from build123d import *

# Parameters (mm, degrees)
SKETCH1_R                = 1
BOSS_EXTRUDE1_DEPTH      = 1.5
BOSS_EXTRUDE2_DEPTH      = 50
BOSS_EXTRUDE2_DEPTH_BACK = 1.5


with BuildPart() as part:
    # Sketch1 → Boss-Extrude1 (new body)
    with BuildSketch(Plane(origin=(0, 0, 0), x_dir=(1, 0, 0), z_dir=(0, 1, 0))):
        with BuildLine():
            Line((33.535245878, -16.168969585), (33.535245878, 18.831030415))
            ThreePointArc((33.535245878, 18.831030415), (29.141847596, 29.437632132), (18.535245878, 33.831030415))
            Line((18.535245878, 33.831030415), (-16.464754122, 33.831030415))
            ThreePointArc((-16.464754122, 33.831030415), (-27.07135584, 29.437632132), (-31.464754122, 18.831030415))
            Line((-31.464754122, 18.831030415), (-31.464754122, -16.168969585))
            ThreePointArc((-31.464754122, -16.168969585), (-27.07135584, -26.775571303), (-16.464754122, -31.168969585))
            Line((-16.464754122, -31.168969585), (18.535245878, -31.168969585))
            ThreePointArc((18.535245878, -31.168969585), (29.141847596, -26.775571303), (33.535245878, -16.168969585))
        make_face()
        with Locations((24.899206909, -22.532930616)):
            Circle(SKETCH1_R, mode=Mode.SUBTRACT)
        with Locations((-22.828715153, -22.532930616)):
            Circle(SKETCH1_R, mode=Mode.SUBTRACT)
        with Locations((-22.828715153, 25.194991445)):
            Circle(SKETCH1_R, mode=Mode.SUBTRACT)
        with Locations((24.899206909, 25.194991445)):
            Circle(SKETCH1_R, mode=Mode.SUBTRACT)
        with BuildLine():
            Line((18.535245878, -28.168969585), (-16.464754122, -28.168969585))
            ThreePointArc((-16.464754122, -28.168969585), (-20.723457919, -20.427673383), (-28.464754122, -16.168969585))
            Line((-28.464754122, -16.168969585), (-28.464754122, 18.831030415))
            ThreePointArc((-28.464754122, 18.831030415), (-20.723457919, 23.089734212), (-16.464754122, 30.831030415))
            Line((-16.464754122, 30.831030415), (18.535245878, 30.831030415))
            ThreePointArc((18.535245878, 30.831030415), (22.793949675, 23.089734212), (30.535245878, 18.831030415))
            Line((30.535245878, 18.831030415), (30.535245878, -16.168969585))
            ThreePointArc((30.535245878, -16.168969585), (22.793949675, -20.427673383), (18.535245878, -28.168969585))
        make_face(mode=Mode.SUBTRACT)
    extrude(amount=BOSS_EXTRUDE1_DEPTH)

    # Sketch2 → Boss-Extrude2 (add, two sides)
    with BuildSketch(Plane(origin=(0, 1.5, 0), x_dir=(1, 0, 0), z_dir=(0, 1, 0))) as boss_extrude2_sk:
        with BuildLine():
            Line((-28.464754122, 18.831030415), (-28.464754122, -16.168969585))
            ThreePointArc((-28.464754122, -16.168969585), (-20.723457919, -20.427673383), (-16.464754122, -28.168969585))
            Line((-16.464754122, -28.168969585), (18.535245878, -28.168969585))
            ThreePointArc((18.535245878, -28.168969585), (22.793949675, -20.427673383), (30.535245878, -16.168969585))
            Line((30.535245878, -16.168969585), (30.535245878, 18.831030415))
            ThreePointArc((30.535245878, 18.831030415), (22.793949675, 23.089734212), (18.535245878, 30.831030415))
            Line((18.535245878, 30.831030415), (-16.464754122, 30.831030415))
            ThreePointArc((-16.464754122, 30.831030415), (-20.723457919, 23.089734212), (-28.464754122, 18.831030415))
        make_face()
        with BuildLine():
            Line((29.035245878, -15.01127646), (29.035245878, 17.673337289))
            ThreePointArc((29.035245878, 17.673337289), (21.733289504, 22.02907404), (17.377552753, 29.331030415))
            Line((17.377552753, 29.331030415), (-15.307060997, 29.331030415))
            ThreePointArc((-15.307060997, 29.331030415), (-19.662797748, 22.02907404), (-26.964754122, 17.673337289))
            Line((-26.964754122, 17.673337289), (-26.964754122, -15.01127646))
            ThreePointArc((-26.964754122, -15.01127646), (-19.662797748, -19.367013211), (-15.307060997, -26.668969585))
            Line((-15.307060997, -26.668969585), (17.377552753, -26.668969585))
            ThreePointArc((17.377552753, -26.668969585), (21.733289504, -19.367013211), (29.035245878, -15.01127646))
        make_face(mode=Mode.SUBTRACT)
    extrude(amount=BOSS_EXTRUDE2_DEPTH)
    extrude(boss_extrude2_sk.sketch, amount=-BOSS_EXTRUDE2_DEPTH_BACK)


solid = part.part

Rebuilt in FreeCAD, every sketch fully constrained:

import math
import FreeCAD as App
import Part
import Sketcher
from FreeCAD import Vector

doc = App.newDocument("Part")
body = doc.addObject("PartDesign::Body", "Body")

sketch1 = body.newObject("Sketcher::SketchObject", "Sketch")
sketch1.AttachmentSupport = (doc.getObject("XZ_Plane"), [""])
sketch1.MapMode = "FlatFace"
sketch1.addGeometry([
    Part.LineSegment(Vector(33.5, 16.2, 0), Vector(33.5, -18.8, 0)),
    Part.ArcOfCircle(Part.Circle(Vector(18.5, -18.8, 0), Vector(0, 0, 1), 15), math.radians(-90), math.radians(0)),
    Part.LineSegment(Vector(18.5, -33.8, 0), Vector(-16.5, -33.8, 0)),
    Part.ArcOfCircle(Part.Circle(Vector(-16.5, -18.8, 0), Vector(0, 0, 1), 15), math.radians(-180), math.radians(-90)),
    Part.LineSegment(Vector(-31.5, -18.8, 0), Vector(-31.5, 16.2, 0)),
    Part.ArcOfCircle(Part.Circle(Vector(-16.5, 16.2, 0), Vector(0, 0, 1), 15), math.radians(90), math.radians(180)),
    Part.LineSegment(Vector(-16.5, 31.2, 0), Vector(18.5, 31.2, 0)),
    Part.ArcOfCircle(Part.Circle(Vector(18.5, 16.2, 0), Vector(0, 0, 1), 15), math.radians(0), math.radians(90)),
    Part.Circle(Vector(-22.8, 22.5, 0), Vector(0, 0, 1), 1),
    Part.Circle(Vector(24.9, 22.5, 0), Vector(0, 0, 1), 1),
    Part.Circle(Vector(-22.8, -25.2, 0), Vector(0, 0, 1), 1),
    Part.ArcOfCircle(Part.Circle(Vector(34, 31.6, 0), Vector(0, 0, 1), 15.9), math.radians(-167), math.radians(-103)),
    Part.LineSegment(Vector(18.5, 28.2, 0), Vector(-16.5, 28.2, 0)),
    Part.ArcOfCircle(Part.Circle(Vector(-31.9, 31.6, 0), Vector(0, 0, 1), 15.9), math.radians(-77), math.radians(-13)),
    Part.LineSegment(Vector(-28.5, 16.2, 0), Vector(-28.5, -18.8, 0)),
    Part.ArcOfCircle(Part.Circle(Vector(-31.9, -34.3, 0), Vector(0, 0, 1), 15.9), math.radians(13), math.radians(77)),
    Part.LineSegment(Vector(-16.5, -30.8, 0), Vector(18.5, -30.8, 0)),
    Part.ArcOfCircle(Part.Circle(Vector(34, -34.3, 0), Vector(0, 0, 1), 15.9), math.radians(103), math.radians(167)),
    Part.LineSegment(Vector(30.5, -18.8, 0), Vector(30.5, 16.2, 0)),
    Part.Circle(Vector(24.9, -25.2, 0), Vector(0, 0, 1), 1),
], False)
sketch1.addConstraint([
    Sketcher.Constraint("Tangent", 0, 2, 1, 2),
    Sketcher.Constraint("Tangent", 1, 1, 2, 1),
    Sketcher.Constraint("Tangent", 2, 2, 3, 2),
    Sketcher.Constraint("Tangent", 3, 1, 4, 1),
    Sketcher.Constraint("Tangent", 4, 2, 5, 2),
    Sketcher.Constraint("Tangent", 5, 1, 6, 1),
    Sketcher.Constraint("Tangent", 6, 2, 7, 2),
    Sketcher.Constraint("Tangent", 7, 1, 0, 1),
    Sketcher.Constraint("Coincident", 11, 1, 12, 1),
    Sketcher.Constraint("Coincident", 12, 2, 13, 2),
    Sketcher.Constraint("Coincident", 13, 1, 14, 1),
    Sketcher.Constraint("Coincident", 14, 2, 15, 2),
    Sketcher.Constraint("Coincident", 15, 1, 16, 1),
    Sketcher.Constraint("Coincident", 16, 2, 17, 2),
    Sketcher.Constraint("Coincident", 17, 1, 18, 1),
    Sketcher.Constraint("Coincident", 18, 2, 11, 2),
    Sketcher.Constraint("Vertical", 0),
    Sketcher.Constraint("Horizontal", 2),
    Sketcher.Constraint("Vertical", 4),
    Sketcher.Constraint("Horizontal", 6),
    Sketcher.Constraint("Horizontal", 12),
    Sketcher.Constraint("Vertical", 14),
    Sketcher.Constraint("Horizontal", 16),
    Sketcher.Constraint("Vertical", 18),
    Sketcher.Constraint("Equal", 1, 3),
    Sketcher.Constraint("Equal", 3, 5),
    Sketcher.Constraint("Equal", 5, 7),
    Sketcher.Constraint("Equal", 8, 9),
    Sketcher.Constraint("Equal", 9, 10),
    Sketcher.Constraint("Equal", 11, 13),
    Sketcher.Constraint("Equal", 13, 15),
    Sketcher.Constraint("Equal", 15, 17),
    Sketcher.Constraint("Equal", 10, 19),
    Sketcher.Constraint("Horizontal", 8, 3, 9, 3),
    Sketcher.Constraint("Horizontal", 11, 3, 13, 3),
    Sketcher.Constraint("Horizontal", 15, 3, 17, 3),
    Sketcher.Constraint("Horizontal", 10, 3, 19, 3),
    Sketcher.Constraint("Horizontal", 7, 1, 13, 1),
    Sketcher.Constraint("Horizontal", 3, 1, 14, 2),
    Sketcher.Constraint("Horizontal", 14, 2, 17, 1),
    Sketcher.Constraint("Horizontal", 13, 1, 18, 2),
    Sketcher.Constraint("Vertical", 8, 3, 10, 3),
    Sketcher.Constraint("Vertical", 13, 3, 15, 3),
    Sketcher.Constraint("Vertical", 9, 3, 19, 3),
    Sketcher.Constraint("Vertical", 6, 2, 11, 1),
    Sketcher.Constraint("Vertical", 5, 1, 12, 2),
    Sketcher.Constraint("Vertical", 12, 2, 15, 1),
    Sketcher.Constraint("Equal", 16, 0),
    Sketcher.Constraint("Diameter", 8, 2.0),
    Sketcher.Constraint("Radius", 1, 15.0),
    Sketcher.Constraint("DistanceX", 2, 2, 2, 1, 35.0),
    Sketcher.Constraint("DistanceY", 11, 1, 6, 2, 3.0),
    Sketcher.Constraint("DistanceX", 4, 2, 13, 1, 3.0),
    Sketcher.Constraint("Radius", 11, 15.850188),
    Sketcher.Constraint("DistanceY", 1, 3, -1, 1, 18.83103),
    Sketcher.Constraint("DistanceY", -1, 1, 8, 3, 22.532931),
    Sketcher.Constraint("DistanceY", 10, 3, -1, 1, 25.194991),
    Sketcher.Constraint("DistanceX", 8, 3, 5, 3, 6.363961),
    Sketcher.Constraint("DistanceX", 7, 3, 9, 3, 6.363961),
    Sketcher.Constraint("DistanceX", -1, 1, 1, 3, 18.535246),
])
pad1 = body.newObject("PartDesign::Pad", "Pad")
pad1.Profile = sketch1
pad1.Length = 1.5
pad1.Reversed = True

sketch2 = body.newObject("Sketcher::SketchObject", "Sketch001")
sketch2.AttachmentSupport = (doc.getObject("XZ_Plane"), [""])
sketch2.MapMode = "FlatFace"
sketch2.AttachmentOffset = App.Placement(Vector(0, 0, -1.5), App.Rotation())
sketch2.addGeometry([
    Part.LineSegment(Vector(-28, -19, 0), Vector(-28, 16, 0)),
    Part.ArcOfCircle(Part.Circle(Vector(-32, 32, 0), Vector(0, 0, 1), 16), math.radians(-77), math.radians(-13)),
    Part.LineSegment(Vector(-16, 28, 0), Vector(19, 28, 0)),
    Part.ArcOfCircle(Part.Circle(Vector(34, 32, 0), Vector(0, 0, 1), 16), math.radians(-167), math.radians(-103)),
    Part.LineSegment(Vector(31, 16, 0), Vector(31, -19, 0)),
    Part.ArcOfCircle(Part.Circle(Vector(34, -34, 0), Vector(0, 0, 1), 16), math.radians(103), math.radians(167)),
    Part.LineSegment(Vector(19, -31, 0), Vector(-16, -31, 0)),
    Part.ArcOfCircle(Part.Circle(Vector(-32, -34, 0), Vector(0, 0, 1), 16), math.radians(13), math.radians(77)),
    Part.LineSegment(Vector(29, -18, 0), Vector(29, 15, 0)),
    Part.ArcOfCircle(Part.Circle(Vector(34, 32, 0), Vector(0, 0, 1), 17), math.radians(-163), math.radians(-107)),
    Part.LineSegment(Vector(17, 27, 0), Vector(-15, 27, 0)),
    Part.ArcOfCircle(Part.Circle(Vector(-32, 32, 0), Vector(0, 0, 1), 17), math.radians(-73), math.radians(-17)),
    Part.LineSegment(Vector(-27, 15, 0), Vector(-27, -18, 0)),
    Part.ArcOfCircle(Part.Circle(Vector(-32, -34, 0), Vector(0, 0, 1), 17), math.radians(17), math.radians(73)),
    Part.LineSegment(Vector(-15, -29, 0), Vector(17, -29, 0)),
    Part.ArcOfCircle(Part.Circle(Vector(34, -34, 0), Vector(0, 0, 1), 17), math.radians(107), math.radians(163)),
], False)
sketch2.addConstraint([
    Sketcher.Constraint("Coincident", 0, 2, 1, 1),
    Sketcher.Constraint("Coincident", 1, 2, 2, 1),
    Sketcher.Constraint("Coincident", 2, 2, 3, 1),
    Sketcher.Constraint("Coincident", 3, 2, 4, 1),
    Sketcher.Constraint("Coincident", 4, 2, 5, 1),
    Sketcher.Constraint("Coincident", 5, 2, 6, 1),
    Sketcher.Constraint("Coincident", 6, 2, 7, 1),
    Sketcher.Constraint("Coincident", 7, 2, 0, 1),
    Sketcher.Constraint("Coincident", 8, 2, 9, 2),
    Sketcher.Constraint("Coincident", 9, 1, 10, 1),
    Sketcher.Constraint("Coincident", 10, 2, 11, 2),
    Sketcher.Constraint("Coincident", 11, 1, 12, 1),
    Sketcher.Constraint("Coincident", 12, 2, 13, 2),
    Sketcher.Constraint("Coincident", 13, 1, 14, 1),
    Sketcher.Constraint("Coincident", 14, 2, 15, 2),
    Sketcher.Constraint("Coincident", 15, 1, 8, 1),
    Sketcher.Constraint("Vertical", 0),
    Sketcher.Constraint("Horizontal", 2),
    Sketcher.Constraint("Vertical", 4),
    Sketcher.Constraint("Horizontal", 6),
    Sketcher.Constraint("Vertical", 8),
    Sketcher.Constraint("Horizontal", 10),
    Sketcher.Constraint("Vertical", 12),
    Sketcher.Constraint("Horizontal", 14),
    Sketcher.Constraint("Coincident", 9, 3, 3, 3),
    Sketcher.Constraint("Coincident", 11, 3, 1, 3),
    Sketcher.Constraint("Coincident", 13, 3, 7, 3),
    Sketcher.Constraint("Coincident", 15, 3, 5, 3),
    Sketcher.Constraint("Equal", 1, 3),
    Sketcher.Constraint("Equal", 3, 5),
    Sketcher.Constraint("Equal", 5, 7),
    Sketcher.Constraint("Equal", 9, 11),
    Sketcher.Constraint("Equal", 11, 13),
    Sketcher.Constraint("Equal", 13, 15),
    Sketcher.Constraint("Horizontal", 1, 3, 3, 3),
    Sketcher.Constraint("Horizontal", 5, 3, 7, 3),
    Sketcher.Constraint("Horizontal", 0, 2, 3, 2),
    Sketcher.Constraint("Horizontal", 4, 2, 7, 2),
    Sketcher.Constraint("Horizontal", 8, 2, 11, 1),
    Sketcher.Constraint("Vertical", 3, 3, 5, 3),
    Sketcher.Constraint("Vertical", 2, 2, 5, 2),
    Sketcher.Constraint("Vertical", 10, 2, 13, 1),
    Sketcher.Constraint("Equal", 6, 0),
    Sketcher.Constraint("Equal", 14, 8),
    Sketcher.Constraint("DistanceX", 2, 1, 2, 2, 35.0),
    Sketcher.Constraint("DistanceX", 0, 2, 1, 2, 12.0),
    Sketcher.Constraint("DistanceY", 0, 2, 1, 2, 12.0),
    Sketcher.Constraint("DistanceX", 8, 2, 3, 2, 1.5),
    Sketcher.Constraint("Radius", 1, 15.850188),
    Sketcher.Constraint("Radius", 9, 17.350188),
    Sketcher.Constraint("DistanceY", -1, 1, 1, 3, 31.635448),
    Sketcher.Constraint("DistanceX", 10, 2, -1, 1, 15.307061),
])
pad2 = body.newObject("PartDesign::Pad", "Pad001")
pad2.Profile = sketch2
pad2.Type = "TwoLengths"
pad2.Length = 50
pad2.Length2 = 1.5
pad2.Reversed = True

doc.recompute()
